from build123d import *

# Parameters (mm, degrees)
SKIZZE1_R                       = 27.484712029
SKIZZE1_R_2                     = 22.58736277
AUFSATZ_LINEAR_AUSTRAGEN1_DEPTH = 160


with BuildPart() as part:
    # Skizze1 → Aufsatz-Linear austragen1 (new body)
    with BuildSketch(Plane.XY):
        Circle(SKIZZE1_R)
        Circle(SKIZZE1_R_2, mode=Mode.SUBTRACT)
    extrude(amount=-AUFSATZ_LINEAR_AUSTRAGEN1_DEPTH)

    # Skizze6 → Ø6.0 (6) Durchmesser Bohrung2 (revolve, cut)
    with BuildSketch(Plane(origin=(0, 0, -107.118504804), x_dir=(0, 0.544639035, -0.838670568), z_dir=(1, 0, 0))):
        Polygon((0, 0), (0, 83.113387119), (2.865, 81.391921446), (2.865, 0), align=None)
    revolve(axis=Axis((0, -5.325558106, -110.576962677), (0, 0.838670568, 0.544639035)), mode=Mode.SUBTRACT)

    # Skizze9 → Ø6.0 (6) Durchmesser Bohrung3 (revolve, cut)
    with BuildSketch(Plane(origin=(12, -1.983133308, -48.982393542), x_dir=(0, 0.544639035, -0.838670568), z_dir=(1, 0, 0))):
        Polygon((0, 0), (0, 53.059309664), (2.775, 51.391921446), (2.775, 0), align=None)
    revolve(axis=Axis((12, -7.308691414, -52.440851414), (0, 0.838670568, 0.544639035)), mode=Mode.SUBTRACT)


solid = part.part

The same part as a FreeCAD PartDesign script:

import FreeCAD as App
import Part
import Sketcher
from FreeCAD import Vector
Q = App.Units.Quantity

doc = App.newDocument("Part")
body = doc.addObject("PartDesign::Body", "Body")

sketch1 = body.newObject("Sketcher::SketchObject", "Sketch")
sketch1.AttachmentSupport = (doc.getObject("XY_Plane"), [""])
sketch1.MapMode = "FlatFace"
sketch1.addGeometry([
    Part.Circle(Vector(0, 0, 0), Vector(0, 0, 1), 27),
    Part.Circle(Vector(0, 0, 0), Vector(0, 0, 1), 23),
], False)
sketch1.addConstraint([
    Sketcher.Constraint("Coincident", 0, 3, -1, 1),
    Sketcher.Constraint("Coincident", 1, 3, -1, 1),
    Sketcher.Constraint("Diameter", 0, Q("54.969424 mm")),
    Sketcher.Constraint("Diameter", 1, Q("45.174726 mm")),
])
pad1 = body.newObject("PartDesign::Pad", "Pad")
pad1.Profile = sketch1
pad1.Length = 160
pad1.Reversed = True

sketch2 = body.newObject("Sketcher::SketchObject", "Sketch001")
sketch2.AttachmentSupport = (doc.getObject("YZ_Plane"), [""])
sketch2.MapMode = "FlatFace"
sketch2.addGeometry([
    Part.LineSegment(Vector(69.7, -61.9, 0), Vector(0, -107.1, 0)),
    Part.LineSegment(Vector(0, -107.1, 0), Vector(1.6, -109.5, 0)),
    Part.LineSegment(Vector(1.6, -109.5, 0), Vector(69.8, -65.2, 0)),
    Part.LineSegment(Vector(69.8, -65.2, 0), Vector(69.7, -61.9, 0)),
], False)
sketch2.addGeometry(Part.LineSegment(Vector(0, -107.1, 0), Vector(69.7, -61.9, 0)), True)
sketch2.addConstraint([
    Sketcher.Constraint("Coincident", 0, 2, 1, 1),
    Sketcher.Constraint("Coincident", 1, 2, 2, 1),
    Sketcher.Constraint("Coincident", 2, 2, 3, 1),
    Sketcher.Constraint("Coincident", 3, 2, 0, 1),
    Sketcher.Constraint("Coincident", 4, 1, 0, 2),
    Sketcher.Constraint("Coincident", 4, 2, 3, 2),
    Sketcher.Constraint("PointOnObject", 0, 2, -2),
    Sketcher.Constraint("Perpendicular", 0, 1),
    Sketcher.Constraint("Perpendicular", 1, 2),
    Sketcher.Constraint("Angle", 0, Q("-147 deg")),
    Sketcher.Constraint("Angle", 3, Q("92 deg")),
    Sketcher.Constraint("Distance", 1, Q("2.865 mm")),
    Sketcher.Constraint("DistanceX", -1, 1, 2, 2, Q("69.8214 mm")),
    Sketcher.Constraint("DistanceY", 2, 2, -1, 1, Q("65.192078 mm")),
])
groove = body.newObject("PartDesign::Groove", "Groove")
groove.Profile = sketch2
groove.ReferenceAxis = (sketch2, ["Axis0"])
groove.Angle = 360

sketch3 = body.newObject("Sketcher::SketchObject", "Sketch002")
sketch3.AttachmentSupport = (doc.getObject("YZ_Plane"), [""])
sketch3.MapMode = "FlatFace"
sketch3.AttachmentOffset = App.Placement(Vector(0, 0, 12), App.Rotation())
sketch3.addGeometry([
    Part.LineSegment(Vector(42.5, -20.1, 0), Vector(-2, -49, 0)),
    Part.LineSegment(Vector(-2, -49, 0), Vector(-0.5, -51.3, 0)),
    Part.LineSegment(Vector(-0.5, -51.3, 0), Vector(42.6, -23.3, 0)),
    Part.LineSegment(Vector(42.6, -23.3, 0), Vector(42.5, -20.1, 0)),
], False)
sketch3.addGeometry(Part.LineSegment(Vector(-2, -49, 0), Vector(42.5, -20.1, 0)), True)
sketch3.addConstraint([
    Sketcher.Constraint("Coincident", 0, 2, 1, 1),
    Sketcher.Constraint("Coincident", 1, 2, 2, 1),
    Sketcher.Constraint("Coincident", 2, 2, 3, 1),
    Sketcher.Constraint("Coincident", 3, 2, 0, 1),
    Sketcher.Constraint("Coincident", 4, 1, 0, 2),
    Sketcher.Constraint("Coincident", 4, 2, 3, 2),
    Sketcher.Constraint("Perpendicular", 0, 1),
    Sketcher.Constraint("Perpendicular", 1, 2),
    Sketcher.Constraint("Angle", 0, Q("-147 deg")),
    Sketcher.Constraint("Angle", 3, Q("92 deg")),
    Sketcher.Constraint("Distance", 1, Q("2.775 mm")),
    Sketcher.Constraint("Distance", 0, Q("53.05931 mm")),
    Sketcher.Constraint("DistanceX", 1, 2, -1, 1, Q("0.47176 mm")),
    Sketcher.Constraint("DistanceY", 0, 2, -1, 1, Q("48.982394 mm")),
])
groove2 = body.newObject("PartDesign::Groove", "Groove001")
groove2.Profile = sketch3
groove2.ReferenceAxis = (sketch3, ["Axis0"])
groove2.Angle = 360

doc.recompute()
